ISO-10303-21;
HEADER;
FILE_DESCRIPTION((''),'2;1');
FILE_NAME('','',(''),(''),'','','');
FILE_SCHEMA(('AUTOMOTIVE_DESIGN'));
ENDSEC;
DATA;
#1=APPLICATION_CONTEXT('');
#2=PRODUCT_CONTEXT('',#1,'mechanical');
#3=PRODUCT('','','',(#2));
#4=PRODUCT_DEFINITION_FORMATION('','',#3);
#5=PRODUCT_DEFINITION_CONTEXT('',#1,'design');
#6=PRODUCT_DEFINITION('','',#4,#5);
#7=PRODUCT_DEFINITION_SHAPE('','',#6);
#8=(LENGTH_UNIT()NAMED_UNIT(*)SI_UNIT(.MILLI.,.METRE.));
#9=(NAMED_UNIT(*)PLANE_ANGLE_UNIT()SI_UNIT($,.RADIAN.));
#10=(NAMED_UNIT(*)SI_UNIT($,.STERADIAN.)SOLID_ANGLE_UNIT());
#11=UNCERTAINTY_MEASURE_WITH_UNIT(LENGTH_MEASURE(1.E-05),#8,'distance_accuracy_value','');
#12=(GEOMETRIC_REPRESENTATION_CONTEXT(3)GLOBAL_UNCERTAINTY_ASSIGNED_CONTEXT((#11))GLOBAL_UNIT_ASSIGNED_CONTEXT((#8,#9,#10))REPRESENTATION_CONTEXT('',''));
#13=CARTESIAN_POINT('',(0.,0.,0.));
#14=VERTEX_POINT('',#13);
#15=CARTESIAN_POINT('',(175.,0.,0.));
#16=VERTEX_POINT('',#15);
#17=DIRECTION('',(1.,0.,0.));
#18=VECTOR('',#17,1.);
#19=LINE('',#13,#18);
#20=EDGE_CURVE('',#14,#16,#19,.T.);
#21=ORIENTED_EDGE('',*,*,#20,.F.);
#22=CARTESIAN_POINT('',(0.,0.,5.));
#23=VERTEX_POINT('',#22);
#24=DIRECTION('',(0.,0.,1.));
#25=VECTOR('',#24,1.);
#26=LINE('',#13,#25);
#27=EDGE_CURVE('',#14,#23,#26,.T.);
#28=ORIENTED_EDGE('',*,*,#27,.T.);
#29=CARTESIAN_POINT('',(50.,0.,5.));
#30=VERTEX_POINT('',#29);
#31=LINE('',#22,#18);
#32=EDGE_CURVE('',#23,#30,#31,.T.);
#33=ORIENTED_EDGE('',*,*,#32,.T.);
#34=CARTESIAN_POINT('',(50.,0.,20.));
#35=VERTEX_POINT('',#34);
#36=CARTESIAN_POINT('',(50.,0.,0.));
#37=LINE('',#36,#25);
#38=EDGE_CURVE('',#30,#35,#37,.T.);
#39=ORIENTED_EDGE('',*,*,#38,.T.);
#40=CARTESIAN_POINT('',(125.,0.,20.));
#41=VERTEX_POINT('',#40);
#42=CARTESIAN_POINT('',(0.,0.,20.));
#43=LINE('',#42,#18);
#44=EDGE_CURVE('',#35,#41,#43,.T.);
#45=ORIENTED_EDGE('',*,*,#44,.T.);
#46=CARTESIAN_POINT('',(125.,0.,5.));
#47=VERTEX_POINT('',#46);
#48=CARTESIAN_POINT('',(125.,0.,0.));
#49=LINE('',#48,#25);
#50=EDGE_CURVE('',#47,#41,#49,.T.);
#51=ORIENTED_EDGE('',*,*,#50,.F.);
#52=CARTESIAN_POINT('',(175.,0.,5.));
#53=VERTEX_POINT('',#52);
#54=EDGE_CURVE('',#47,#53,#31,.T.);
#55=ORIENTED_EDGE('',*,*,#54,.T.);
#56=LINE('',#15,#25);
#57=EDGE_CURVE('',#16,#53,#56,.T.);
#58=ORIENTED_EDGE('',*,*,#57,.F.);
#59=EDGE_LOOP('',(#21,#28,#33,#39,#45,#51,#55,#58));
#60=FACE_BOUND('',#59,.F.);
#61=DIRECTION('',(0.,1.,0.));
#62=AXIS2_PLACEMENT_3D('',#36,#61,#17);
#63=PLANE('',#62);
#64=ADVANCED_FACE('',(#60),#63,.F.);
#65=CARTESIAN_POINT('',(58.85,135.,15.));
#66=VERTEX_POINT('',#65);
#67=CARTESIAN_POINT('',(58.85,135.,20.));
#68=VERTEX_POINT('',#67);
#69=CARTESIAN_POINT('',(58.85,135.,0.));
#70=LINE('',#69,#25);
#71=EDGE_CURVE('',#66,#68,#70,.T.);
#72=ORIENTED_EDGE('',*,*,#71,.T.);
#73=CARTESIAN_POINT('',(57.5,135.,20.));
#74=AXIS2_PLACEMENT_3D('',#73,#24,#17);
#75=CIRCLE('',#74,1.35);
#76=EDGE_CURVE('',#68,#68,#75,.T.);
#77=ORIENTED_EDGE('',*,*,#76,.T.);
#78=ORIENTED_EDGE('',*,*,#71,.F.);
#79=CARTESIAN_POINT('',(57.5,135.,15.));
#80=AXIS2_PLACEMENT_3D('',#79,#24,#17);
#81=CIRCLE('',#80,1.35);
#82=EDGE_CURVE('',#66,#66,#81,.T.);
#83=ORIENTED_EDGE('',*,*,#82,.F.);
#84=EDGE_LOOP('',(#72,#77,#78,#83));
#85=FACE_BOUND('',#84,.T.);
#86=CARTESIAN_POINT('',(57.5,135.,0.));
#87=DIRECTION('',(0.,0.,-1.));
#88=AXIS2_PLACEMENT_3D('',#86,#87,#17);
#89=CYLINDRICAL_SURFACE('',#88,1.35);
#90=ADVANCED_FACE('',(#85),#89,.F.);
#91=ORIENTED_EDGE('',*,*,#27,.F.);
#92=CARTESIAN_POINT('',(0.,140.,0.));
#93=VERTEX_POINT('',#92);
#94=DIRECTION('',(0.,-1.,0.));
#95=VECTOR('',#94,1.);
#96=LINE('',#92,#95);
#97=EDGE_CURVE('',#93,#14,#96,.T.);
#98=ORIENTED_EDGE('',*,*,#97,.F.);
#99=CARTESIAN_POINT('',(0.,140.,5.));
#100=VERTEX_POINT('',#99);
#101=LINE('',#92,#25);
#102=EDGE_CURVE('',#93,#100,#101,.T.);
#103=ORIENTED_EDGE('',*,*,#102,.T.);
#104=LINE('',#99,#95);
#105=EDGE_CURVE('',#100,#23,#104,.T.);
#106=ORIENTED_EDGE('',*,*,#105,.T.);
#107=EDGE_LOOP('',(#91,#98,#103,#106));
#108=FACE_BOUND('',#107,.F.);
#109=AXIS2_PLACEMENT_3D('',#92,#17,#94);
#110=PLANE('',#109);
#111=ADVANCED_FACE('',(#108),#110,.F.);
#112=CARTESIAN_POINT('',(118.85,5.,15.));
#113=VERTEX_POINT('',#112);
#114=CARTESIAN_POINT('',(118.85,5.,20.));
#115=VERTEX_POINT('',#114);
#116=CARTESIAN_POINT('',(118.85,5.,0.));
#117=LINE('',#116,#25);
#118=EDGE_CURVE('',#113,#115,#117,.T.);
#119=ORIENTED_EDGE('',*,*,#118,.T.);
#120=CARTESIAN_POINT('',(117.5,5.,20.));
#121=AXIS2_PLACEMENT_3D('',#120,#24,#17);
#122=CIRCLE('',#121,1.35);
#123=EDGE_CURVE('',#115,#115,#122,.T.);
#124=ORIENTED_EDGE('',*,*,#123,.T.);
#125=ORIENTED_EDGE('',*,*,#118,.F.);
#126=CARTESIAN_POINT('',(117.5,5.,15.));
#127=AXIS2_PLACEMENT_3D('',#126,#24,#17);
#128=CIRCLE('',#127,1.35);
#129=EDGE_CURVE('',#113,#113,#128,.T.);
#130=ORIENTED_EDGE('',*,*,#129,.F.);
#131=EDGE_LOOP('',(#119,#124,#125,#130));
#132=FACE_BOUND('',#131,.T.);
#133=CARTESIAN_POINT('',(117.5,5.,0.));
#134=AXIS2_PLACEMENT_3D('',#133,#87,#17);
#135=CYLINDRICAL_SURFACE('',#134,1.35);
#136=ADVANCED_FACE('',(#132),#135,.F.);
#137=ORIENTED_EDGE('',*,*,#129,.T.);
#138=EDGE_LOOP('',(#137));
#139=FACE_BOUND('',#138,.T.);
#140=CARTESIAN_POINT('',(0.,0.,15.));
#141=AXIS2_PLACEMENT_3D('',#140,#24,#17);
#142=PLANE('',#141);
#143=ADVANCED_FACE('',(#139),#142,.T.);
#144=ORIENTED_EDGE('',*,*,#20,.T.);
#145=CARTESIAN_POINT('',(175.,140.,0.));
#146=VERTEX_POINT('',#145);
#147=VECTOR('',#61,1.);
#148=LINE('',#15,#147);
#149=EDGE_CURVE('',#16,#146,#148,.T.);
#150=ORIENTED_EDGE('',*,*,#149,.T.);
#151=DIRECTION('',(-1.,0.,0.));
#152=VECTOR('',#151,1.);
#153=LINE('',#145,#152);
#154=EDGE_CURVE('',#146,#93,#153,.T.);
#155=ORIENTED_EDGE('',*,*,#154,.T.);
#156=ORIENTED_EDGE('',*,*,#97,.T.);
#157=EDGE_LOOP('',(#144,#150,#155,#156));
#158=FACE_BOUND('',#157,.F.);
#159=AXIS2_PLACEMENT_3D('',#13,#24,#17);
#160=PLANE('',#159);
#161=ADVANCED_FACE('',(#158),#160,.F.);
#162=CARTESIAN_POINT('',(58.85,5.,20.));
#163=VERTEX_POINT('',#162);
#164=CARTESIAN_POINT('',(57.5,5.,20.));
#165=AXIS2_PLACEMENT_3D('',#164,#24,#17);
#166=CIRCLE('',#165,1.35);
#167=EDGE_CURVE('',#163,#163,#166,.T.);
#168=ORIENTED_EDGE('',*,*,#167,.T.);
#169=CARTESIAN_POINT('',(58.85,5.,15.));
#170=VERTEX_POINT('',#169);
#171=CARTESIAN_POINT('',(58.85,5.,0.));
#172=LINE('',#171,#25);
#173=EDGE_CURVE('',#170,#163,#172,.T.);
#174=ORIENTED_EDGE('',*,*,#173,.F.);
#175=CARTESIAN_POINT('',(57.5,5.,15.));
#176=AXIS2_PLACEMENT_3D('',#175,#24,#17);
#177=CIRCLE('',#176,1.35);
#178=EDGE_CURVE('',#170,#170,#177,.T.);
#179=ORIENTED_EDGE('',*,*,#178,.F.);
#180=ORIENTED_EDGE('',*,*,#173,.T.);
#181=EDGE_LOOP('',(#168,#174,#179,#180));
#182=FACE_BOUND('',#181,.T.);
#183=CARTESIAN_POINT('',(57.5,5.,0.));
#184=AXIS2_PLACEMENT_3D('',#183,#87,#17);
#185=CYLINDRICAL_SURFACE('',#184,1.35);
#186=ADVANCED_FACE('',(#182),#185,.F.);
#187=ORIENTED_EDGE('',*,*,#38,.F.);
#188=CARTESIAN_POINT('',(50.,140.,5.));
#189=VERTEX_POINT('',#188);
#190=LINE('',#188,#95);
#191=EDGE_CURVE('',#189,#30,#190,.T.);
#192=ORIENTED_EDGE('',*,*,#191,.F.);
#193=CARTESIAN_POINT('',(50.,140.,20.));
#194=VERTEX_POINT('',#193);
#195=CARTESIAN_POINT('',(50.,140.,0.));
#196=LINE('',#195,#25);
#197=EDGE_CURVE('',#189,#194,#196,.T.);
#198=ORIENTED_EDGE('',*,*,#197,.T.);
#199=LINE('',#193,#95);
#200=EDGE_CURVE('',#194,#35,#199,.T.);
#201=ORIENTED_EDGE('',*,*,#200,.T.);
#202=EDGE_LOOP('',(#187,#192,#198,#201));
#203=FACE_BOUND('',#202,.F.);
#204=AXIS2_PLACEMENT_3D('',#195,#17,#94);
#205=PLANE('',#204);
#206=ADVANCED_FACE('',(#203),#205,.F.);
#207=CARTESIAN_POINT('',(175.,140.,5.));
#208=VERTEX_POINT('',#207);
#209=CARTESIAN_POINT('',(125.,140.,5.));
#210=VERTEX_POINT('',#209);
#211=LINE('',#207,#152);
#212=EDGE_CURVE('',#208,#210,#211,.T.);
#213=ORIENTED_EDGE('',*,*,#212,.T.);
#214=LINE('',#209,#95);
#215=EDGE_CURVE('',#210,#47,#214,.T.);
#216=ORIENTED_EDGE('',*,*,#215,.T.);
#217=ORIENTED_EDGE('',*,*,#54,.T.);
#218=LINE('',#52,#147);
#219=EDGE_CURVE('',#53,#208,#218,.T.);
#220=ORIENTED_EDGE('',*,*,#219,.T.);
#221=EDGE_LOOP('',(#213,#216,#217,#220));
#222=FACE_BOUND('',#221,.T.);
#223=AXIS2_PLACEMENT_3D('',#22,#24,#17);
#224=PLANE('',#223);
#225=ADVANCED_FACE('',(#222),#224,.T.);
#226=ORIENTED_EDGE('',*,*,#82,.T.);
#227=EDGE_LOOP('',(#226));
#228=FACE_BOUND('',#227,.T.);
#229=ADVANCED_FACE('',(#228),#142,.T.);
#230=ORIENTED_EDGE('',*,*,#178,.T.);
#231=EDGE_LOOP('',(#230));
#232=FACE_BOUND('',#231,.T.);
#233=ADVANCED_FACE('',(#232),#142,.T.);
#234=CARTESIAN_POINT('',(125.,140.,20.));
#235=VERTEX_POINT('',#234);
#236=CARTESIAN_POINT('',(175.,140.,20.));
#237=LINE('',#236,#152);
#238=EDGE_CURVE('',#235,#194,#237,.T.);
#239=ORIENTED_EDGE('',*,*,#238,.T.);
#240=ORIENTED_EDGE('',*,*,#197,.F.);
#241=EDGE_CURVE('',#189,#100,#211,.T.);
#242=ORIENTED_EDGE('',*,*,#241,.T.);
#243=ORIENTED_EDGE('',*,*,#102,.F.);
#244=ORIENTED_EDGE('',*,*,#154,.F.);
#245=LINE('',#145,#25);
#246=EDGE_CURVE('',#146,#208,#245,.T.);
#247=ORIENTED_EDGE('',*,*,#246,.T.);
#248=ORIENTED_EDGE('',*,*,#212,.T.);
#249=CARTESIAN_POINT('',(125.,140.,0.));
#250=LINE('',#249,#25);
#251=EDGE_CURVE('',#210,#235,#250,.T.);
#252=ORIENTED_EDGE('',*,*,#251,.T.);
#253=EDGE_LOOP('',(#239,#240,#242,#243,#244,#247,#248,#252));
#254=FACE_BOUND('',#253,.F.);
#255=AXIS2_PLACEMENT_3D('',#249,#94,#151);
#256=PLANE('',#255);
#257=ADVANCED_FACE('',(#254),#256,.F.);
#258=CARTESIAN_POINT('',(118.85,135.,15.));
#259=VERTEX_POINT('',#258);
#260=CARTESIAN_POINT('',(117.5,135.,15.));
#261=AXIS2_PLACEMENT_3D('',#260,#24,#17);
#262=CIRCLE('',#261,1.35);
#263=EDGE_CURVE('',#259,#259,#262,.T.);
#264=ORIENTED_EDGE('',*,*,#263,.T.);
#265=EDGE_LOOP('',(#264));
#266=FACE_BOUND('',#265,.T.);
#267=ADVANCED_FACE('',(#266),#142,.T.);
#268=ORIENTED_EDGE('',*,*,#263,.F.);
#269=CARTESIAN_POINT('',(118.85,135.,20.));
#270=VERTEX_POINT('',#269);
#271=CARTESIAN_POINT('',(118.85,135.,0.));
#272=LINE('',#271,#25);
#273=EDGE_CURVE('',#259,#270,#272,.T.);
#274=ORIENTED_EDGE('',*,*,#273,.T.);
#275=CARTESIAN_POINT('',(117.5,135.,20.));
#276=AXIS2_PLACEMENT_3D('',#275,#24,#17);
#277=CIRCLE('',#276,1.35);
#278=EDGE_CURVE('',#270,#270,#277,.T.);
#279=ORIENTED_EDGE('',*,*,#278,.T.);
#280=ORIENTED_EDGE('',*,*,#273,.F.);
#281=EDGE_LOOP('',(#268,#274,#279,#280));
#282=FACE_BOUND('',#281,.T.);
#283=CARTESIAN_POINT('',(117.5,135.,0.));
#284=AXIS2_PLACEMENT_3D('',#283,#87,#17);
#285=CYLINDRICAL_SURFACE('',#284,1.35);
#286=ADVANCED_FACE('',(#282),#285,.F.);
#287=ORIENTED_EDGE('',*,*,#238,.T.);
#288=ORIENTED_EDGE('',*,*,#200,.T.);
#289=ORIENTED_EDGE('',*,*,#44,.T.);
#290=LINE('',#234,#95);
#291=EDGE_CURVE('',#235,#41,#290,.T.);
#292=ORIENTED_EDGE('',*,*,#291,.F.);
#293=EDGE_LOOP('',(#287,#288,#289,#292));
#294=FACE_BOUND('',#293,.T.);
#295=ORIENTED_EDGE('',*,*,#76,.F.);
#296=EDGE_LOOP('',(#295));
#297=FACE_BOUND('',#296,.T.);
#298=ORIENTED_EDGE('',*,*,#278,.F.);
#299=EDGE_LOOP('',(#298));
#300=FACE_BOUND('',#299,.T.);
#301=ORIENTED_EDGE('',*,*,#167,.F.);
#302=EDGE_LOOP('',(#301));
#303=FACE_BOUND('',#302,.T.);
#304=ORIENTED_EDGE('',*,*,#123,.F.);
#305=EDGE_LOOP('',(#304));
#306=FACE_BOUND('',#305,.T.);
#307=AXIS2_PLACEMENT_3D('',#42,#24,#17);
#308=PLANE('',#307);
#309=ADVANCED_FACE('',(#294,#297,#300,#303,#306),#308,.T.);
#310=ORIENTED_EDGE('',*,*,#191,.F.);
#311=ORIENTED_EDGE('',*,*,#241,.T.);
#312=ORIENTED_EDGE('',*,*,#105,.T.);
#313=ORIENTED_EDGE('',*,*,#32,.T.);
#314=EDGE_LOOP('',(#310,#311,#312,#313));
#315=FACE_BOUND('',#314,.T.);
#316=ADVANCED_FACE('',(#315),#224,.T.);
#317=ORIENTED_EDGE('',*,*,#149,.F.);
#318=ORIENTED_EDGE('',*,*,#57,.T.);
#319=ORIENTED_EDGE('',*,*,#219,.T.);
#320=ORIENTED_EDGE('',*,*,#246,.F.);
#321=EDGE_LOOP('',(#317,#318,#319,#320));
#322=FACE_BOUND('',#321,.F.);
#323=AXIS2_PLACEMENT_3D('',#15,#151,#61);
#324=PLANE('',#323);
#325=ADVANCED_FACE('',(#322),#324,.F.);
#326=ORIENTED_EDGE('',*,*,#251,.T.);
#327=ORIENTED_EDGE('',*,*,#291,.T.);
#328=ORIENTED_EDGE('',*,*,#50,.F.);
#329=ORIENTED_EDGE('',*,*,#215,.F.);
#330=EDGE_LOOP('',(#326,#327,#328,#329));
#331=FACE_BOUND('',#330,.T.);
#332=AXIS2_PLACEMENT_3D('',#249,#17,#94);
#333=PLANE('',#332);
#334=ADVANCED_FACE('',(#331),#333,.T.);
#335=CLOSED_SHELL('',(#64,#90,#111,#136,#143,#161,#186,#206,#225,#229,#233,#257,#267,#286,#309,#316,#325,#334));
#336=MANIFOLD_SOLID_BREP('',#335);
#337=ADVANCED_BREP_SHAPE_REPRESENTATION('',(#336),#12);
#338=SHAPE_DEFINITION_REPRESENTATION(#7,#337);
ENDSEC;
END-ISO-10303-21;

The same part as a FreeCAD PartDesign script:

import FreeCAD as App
import Part
import Sketcher
from FreeCAD import Vector

doc = App.newDocument("Part")
body = doc.addObject("PartDesign::Body", "Body")

# Sketch on XY plane
sketch1 = body.newObject("Sketcher::SketchObject", "Sketch")
sketch1.AttachmentSupport = (doc.getObject("XY_Plane"), [""])
sketch1.MapMode = "FlatFace"
sketch1.addGeometry([
    Part.LineSegment(Vector(50, 140, 0), Vector(50, 0, 0)),  # 0
    Part.LineSegment(Vector(50, 0, 0), Vector(125, 0, 0)),  # 1
    Part.LineSegment(Vector(125, 0, 0), Vector(125, 140, 0)),  # 2
    Part.LineSegment(Vector(125, 140, 0), Vector(50, 140, 0)),  # 3
    Part.Circle(Vector(57.5, 5, 0), Vector(0, 0, 1), 1.35),  # 4
    Part.Circle(Vector(117.5, 5, 0), Vector(0, 0, 1), 1.35),  # 5
    Part.Circle(Vector(57.5, 135, 0), Vector(0, 0, 1), 1.35),  # 6
    Part.Circle(Vector(117.5, 135, 0), Vector(0, 0, 1), 1.35),  # 7
], False)
sketch1.addConstraint([
    Sketcher.Constraint("Coincident", 0, 2, 1, 1),
    Sketcher.Constraint("Coincident", 1, 2, 2, 1),
    Sketcher.Constraint("Coincident", 2, 2, 3, 1),
    Sketcher.Constraint("Coincident", 3, 2, 0, 1),
    Sketcher.Constraint("Vertical", 0),
    Sketcher.Constraint("Horizontal", 1),
    Sketcher.Constraint("Vertical", 2),
    Sketcher.Constraint("Horizontal", 3),
    Sketcher.Constraint("Equal", 4, 5),
    Sketcher.Constraint("Equal", 5, 6),
    Sketcher.Constraint("Equal", 6, 7),
    Sketcher.Constraint("PointOnObject", 0, 2, -1),
    Sketcher.Constraint("Horizontal", 4, 3, 5, 3),
    Sketcher.Constraint("Horizontal", 6, 3, 7, 3),
    Sketcher.Constraint("Vertical", 4, 3, 6, 3),
    Sketcher.Constraint("Vertical", 5, 3, 7, 3),
    Sketcher.Constraint("Diameter", 4, 2.7),
    Sketcher.Constraint("DistanceY", 0, 2, 0, 1, 140.0),
    Sketcher.Constraint("DistanceY", -1, 1, 4, 3, 5.0),
    Sketcher.Constraint("DistanceX", -1, 1, 0, 2, 50.0),
    Sketcher.Constraint("DistanceX", 4, 3, 5, 3, 60.0),
    Sketcher.Constraint("DistanceY", 7, 3, 2, 2, 5.0),
    Sketcher.Constraint("DistanceX", 1, 1, 1, 2, 75.0),
    Sketcher.Constraint("DistanceX", -1, 1, 4, 3, 57.5),
])
pad1 = body.newObject("PartDesign::Pad", "Pad")
pad1.Profile = sketch1
pad1.Length = 20

# Sketch on XY plane
sketch2 = body.newObject("Sketcher::SketchObject", "Sketch001")
sketch2.AttachmentSupport = (doc.getObject("XY_Plane"), [""])
sketch2.MapMode = "FlatFace"
sketch2.addGeometry([
    Part.Circle(Vector(57.5, 5, 0), Vector(0, 0, 1), 1.35),
    Part.Circle(Vector(117.5, 5, 0), Vector(0, 0, 1), 1.35),
    Part.Circle(Vector(57.5, 135, 0), Vector(0, 0, 1), 1.35),
    Part.Circle(Vector(117.5, 135, 0), Vector(0, 0, 1), 1.35),
], False)
sketch2.addConstraint([
    Sketcher.Constraint("Equal", 0, 1),
    Sketcher.Constraint("Equal", 1, 2),
    Sketcher.Constraint("Equal", 2, 3),
    Sketcher.Constraint("Horizontal", 0, 3, 1, 3),
    Sketcher.Constraint("Horizontal", 2, 3, 3, 3),
    Sketcher.Constraint("Vertical", 0, 3, 2, 3),
    Sketcher.Constraint("Vertical", 1, 3, 3, 3),
    Sketcher.Constraint("Diameter", 0, 2.7),
    Sketcher.Constraint("DistanceY", -1, 1, 0, 3, 5.0),
    Sketcher.Constraint("DistanceX", 0, 3, 1, 3, 60.0),
    Sketcher.Constraint("DistanceY", -1, 1, 2, 3, 135.0),
    Sketcher.Constraint("DistanceX", -1, 1, 0, 3, 57.5),
])
pad2 = body.newObject("PartDesign::Pad", "Pad001")
pad2.Profile = sketch2
pad2.Length = 15

# Sketch on XY plane
sketch3 = body.newObject("Sketcher::SketchObject", "Sketch002")
sketch3.AttachmentSupport = (doc.getObject("XY_Plane"), [""])
sketch3.MapMode = "FlatFace"
sketch3.addGeometry([
    Part.LineSegment(Vector(0, 140, 0), Vector(0, 0, 0)),  # 0
    Part.LineSegment(Vector(0, 0, 0), Vector(50, 0, 0)),  # 1
    Part.LineSegment(Vector(50, 0, 0), Vector(50, 140, 0)),  # 2
    Part.LineSegment(Vector(50, 140, 0), Vector(0, 140, 0)),  # 3
    Part.LineSegment(Vector(125, 140, 0), Vector(125, 0, 0)),  # 4
    Part.LineSegment(Vector(125, 0, 0), Vector(175, 0, 0)),  # 5
    Part.LineSegment(Vector(175, 0, 0), Vector(175, 140, 0)),  # 6
    Part.LineSegment(Vector(175, 140, 0), Vector(125, 140, 0)),  # 7
], False)
sketch3.addConstraint([
    Sketcher.Constraint("Coincident", 0, 2, 1, 1),
    Sketcher.Constraint("Coincident", 1, 2, 2, 1),
    Sketcher.Constraint("Coincident", 2, 2, 3, 1),
    Sketcher.Constraint("Coincident", 3, 2, 0, 1),
    Sketcher.Constraint("Coincident", 4, 2, 5, 1),
    Sketcher.Constraint("Coincident", 5, 2, 6, 1),
    Sketcher.Constraint("Coincident", 6, 2, 7, 1),
    Sketcher.Constraint("Coincident", 7, 2, 4, 1),
    Sketcher.Constraint("Vertical", 0),
    Sketcher.Constraint("Horizontal", 1),
    Sketcher.Constraint("Vertical", 2),
    Sketcher.Constraint("Horizontal", 3),
    Sketcher.Constraint("Vertical", 4),
    Sketcher.Constraint("Horizontal", 5),
    Sketcher.Constraint("Vertical", 6),
    Sketcher.Constraint("Horizontal", 7),
    Sketcher.Constraint("Coincident", 0, 2, -1, 1),
    Sketcher.Constraint("PointOnObject", 4, 2, -1),
    Sketcher.Constraint("Horizontal", 3, 2, 6, 2),
    Sketcher.Constraint("Equal", 3, 5),
    Sketcher.Constraint("DistanceX", 1, 1, 1, 2, 50.0),
    Sketcher.Constraint("DistanceY", 0, 2, 0, 1, 140.0),
    Sketcher.Constraint("DistanceX", -1, 1, 5, 2, 175.0),
])
pad3 = body.newObject("PartDesign::Pad", "Pad002")
pad3.Profile = sketch3
pad3.Length = 5

doc.recompute()
